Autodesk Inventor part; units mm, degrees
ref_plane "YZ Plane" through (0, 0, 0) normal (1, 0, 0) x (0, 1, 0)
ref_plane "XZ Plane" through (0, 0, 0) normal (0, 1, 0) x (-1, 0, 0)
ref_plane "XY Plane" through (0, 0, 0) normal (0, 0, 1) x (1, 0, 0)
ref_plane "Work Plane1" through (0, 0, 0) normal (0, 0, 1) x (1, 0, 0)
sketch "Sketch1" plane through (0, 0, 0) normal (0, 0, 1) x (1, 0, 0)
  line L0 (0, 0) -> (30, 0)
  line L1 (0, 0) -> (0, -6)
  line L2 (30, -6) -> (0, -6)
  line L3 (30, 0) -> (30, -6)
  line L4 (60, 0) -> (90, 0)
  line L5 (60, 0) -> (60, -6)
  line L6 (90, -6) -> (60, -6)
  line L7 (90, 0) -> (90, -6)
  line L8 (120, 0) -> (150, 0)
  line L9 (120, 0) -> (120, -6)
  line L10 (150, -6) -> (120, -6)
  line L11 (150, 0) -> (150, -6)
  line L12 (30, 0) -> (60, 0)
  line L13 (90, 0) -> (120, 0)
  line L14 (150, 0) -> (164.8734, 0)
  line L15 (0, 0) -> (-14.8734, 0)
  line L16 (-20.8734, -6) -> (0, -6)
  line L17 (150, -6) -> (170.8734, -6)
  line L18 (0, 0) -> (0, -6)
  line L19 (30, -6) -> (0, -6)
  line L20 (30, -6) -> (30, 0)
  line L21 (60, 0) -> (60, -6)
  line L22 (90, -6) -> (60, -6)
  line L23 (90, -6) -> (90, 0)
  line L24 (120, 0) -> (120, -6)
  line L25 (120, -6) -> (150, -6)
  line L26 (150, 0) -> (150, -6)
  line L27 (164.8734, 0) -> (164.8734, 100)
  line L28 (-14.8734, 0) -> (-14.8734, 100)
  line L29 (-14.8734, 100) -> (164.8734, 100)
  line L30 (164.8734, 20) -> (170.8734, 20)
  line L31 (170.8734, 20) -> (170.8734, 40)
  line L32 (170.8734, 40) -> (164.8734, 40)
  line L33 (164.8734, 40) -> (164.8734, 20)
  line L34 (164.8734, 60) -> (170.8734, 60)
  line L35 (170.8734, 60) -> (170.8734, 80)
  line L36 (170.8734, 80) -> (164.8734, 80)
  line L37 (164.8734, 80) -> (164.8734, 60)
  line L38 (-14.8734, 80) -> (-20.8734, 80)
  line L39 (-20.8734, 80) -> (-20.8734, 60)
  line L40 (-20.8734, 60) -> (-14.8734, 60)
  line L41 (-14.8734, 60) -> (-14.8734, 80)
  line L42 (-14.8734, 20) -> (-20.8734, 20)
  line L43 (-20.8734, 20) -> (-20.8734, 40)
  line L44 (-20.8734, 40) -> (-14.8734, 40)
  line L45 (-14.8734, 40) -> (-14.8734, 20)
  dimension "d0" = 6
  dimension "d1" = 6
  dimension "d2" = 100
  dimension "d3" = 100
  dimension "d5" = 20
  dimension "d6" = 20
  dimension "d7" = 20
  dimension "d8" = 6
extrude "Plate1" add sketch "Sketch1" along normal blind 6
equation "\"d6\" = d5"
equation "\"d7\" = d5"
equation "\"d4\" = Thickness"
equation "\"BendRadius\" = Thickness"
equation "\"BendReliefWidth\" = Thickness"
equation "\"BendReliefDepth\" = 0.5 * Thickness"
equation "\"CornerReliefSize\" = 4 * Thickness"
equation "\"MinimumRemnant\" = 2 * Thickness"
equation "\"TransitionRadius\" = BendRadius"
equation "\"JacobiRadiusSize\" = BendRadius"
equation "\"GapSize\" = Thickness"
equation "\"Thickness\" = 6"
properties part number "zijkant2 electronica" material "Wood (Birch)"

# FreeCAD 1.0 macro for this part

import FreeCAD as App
import Part
import Sketcher
from FreeCAD import Vector
Q = App.Units.Quantity

doc = App.newDocument("Part")
params = doc.addObject("Spreadsheet::Sheet", "Params")
for row, (alias, value) in enumerate([
    ("sketch1_width", "6 mm"),
    ("sketch1_height", "20 mm"),
    ("sketch1_width2", "30 mm"),
    ("pad1_length", "6 mm"),
], start=1):
    params.set(f"A{row}", alias)
    params.set(f"B{row}", "=" + value)
    params.setAlias(f"B{row}", alias)

body = doc.addObject("PartDesign::Body", "Body")

# Sketch on XY plane
sketch1 = body.newObject("Sketcher::SketchObject", "Sketch")
sketch1.AttachmentSupport = (doc.getObject("XY_Plane"), [""])
sketch1.MapMode = "FlatFace"
sketch1.addGeometry([
    Part.LineSegment(Vector(-15, 0, 0), Vector(0, 0, 0)),  # 0
    Part.LineSegment(Vector(0, 0, 0), Vector(0, -6, 0)),  # 1
    Part.LineSegment(Vector(0, -6, 0), Vector(30, -6, 0)),  # 2
    Part.LineSegment(Vector(30, -6, 0), Vector(30, 0, 0)),  # 3
    Part.LineSegment(Vector(30, 0, 0), Vector(60, 0, 0)),  # 4
    Part.LineSegment(Vector(60, 0, 0), Vector(60, -6, 0)),  # 5
    Part.LineSegment(Vector(60, -6, 0), Vector(90, -6, 0)),  # 6
    Part.LineSegment(Vector(90, -6, 0), Vector(90, 0, 0)),  # 7
    Part.LineSegment(Vector(90, 0, 0), Vector(120, 0, 0)),  # 8
    Part.LineSegment(Vector(120, 0, 0), Vector(120, -6, 0)),  # 9
    Part.LineSegment(Vector(120, -6, 0), Vector(150, -6, 0)),  # 10
    Part.LineSegment(Vector(150, -6, 0), Vector(150, 0, 0)),  # 11
    Part.LineSegment(Vector(150, 0, 0), Vector(165, 0, 0)),  # 12
    Part.LineSegment(Vector(165, 0, 0), Vector(165, 20, 0)),  # 13
    Part.LineSegment(Vector(165, 20, 0), Vector(171, 20, 0)),  # 14
    Part.LineSegment(Vector(171, 20, 0), Vector(171, 40, 0)),  # 15
    Part.LineSegment(Vector(171, 40, 0), Vector(165, 40, 0)),  # 16
    Part.LineSegment(Vector(165, 40, 0), Vector(165, 60, 0)),  # 17
    Part.LineSegment(Vector(165, 60, 0), Vector(171, 60, 0)),  # 18
    Part.LineSegment(Vector(171, 60, 0), Vector(171, 80, 0)),  # 19
    Part.LineSegment(Vector(171, 80, 0), Vector(165, 80, 0)),  # 20
    Part.LineSegment(Vector(165, 80, 0), Vector(165, 100, 0)),  # 21
    Part.LineSegment(Vector(165, 100, 0), Vector(-15, 100, 0)),  # 22
    Part.LineSegment(Vector(-15, 100, 0), Vector(-15, 80, 0)),  # 23
    Part.LineSegment(Vector(-15, 80, 0), Vector(-21, 80, 0)),  # 24
    Part.LineSegment(Vector(-21, 80, 0), Vector(-21, 60, 0)),  # 25
    Part.LineSegment(Vector(-21, 60, 0), Vector(-15, 60, 0)),  # 26
    Part.LineSegment(Vector(-15, 60, 0), Vector(-15, 40, 0)),  # 27
    Part.LineSegment(Vector(-15, 40, 0), Vector(-21, 40, 0)),  # 28
    Part.LineSegment(Vector(-21, 40, 0), Vector(-21, 20, 0)),  # 29
    Part.LineSegment(Vector(-21, 20, 0), Vector(-15, 20, 0)),  # 30
    Part.LineSegment(Vector(-15, 20, 0), Vector(-15, 0, 0)),  # 31
], False)
sketch1.addConstraint([
    Sketcher.Constraint("Coincident", 0, 2, 1, 1),
    Sketcher.Constraint("Coincident", 1, 2, 2, 1),
    Sketcher.Constraint("Coincident", 2, 2, 3, 1),
    Sketcher.Constraint("Coincident", 3, 2, 4, 1),
    Sketcher.Constraint("Coincident", 4, 2, 5, 1),
    Sketcher.Constraint("Coincident", 5, 2, 6, 1),
    Sketcher.Constraint("Coincident", 6, 2, 7, 1),
    Sketcher.Constraint("Coincident", 7, 2, 8, 1),
    Sketcher.Constraint("Coincident", 8, 2, 9, 1),
    Sketcher.Constraint("Coincident", 9, 2, 10, 1),
    Sketcher.Constraint("Coincident", 10, 2, 11, 1),
    Sketcher.Constraint("Coincident", 11, 2, 12, 1),
    Sketcher.Constraint("Coincident", 12, 2, 13, 1),
    Sketcher.Constraint("Coincident", 13, 2, 14, 1),
    Sketcher.Constraint("Coincident", 14, 2, 15, 1),
    Sketcher.Constraint("Coincident", 15, 2, 16, 1),
    Sketcher.Constraint("Coincident", 16, 2, 17, 1),
    Sketcher.Constraint("Coincident", 17, 2, 18, 1),
    Sketcher.Constraint("Coincident", 18, 2, 19, 1),
    Sketcher.Constraint("Coincident", 19, 2, 20, 1),
    Sketcher.Constraint("Coincident", 20, 2, 21, 1),
    Sketcher.Constraint("Coincident", 21, 2, 22, 1),
    Sketcher.Constraint("Coincident", 22, 2, 23, 1),
    Sketcher.Constraint("Coincident", 23, 2, 24, 1),
    Sketcher.Constraint("Coincident", 24, 2, 25, 1),
    Sketcher.Constraint("Coincident", 25, 2, 26, 1),
    Sketcher.Constraint("Coincident", 26, 2, 27, 1),
    Sketcher.Constraint("Coincident", 27, 2, 28, 1),
    Sketcher.Constraint("Coincident", 28, 2, 29, 1),
    Sketcher.Constraint("Coincident", 29, 2, 30, 1),
    Sketcher.Constraint("Coincident", 30, 2, 31, 1),
    Sketcher.Constraint("Coincident", 31, 2, 0, 1),
    Sketcher.Constraint("Horizontal", 0),
    Sketcher.Constraint("Vertical", 1),
    Sketcher.Constraint("Horizontal", 2),
    Sketcher.Constraint("Vertical", 3),
    Sketcher.Constraint("Horizontal", 4),
    Sketcher.Constraint("Vertical", 5),
    Sketcher.Constraint("Horizontal", 6),
    Sketcher.Constraint("Vertical", 7),
    Sketcher.Constraint("Horizontal", 8),
    Sketcher.Constraint("Vertical", 9),
    Sketcher.Constraint("Horizontal", 10),
    Sketcher.Constraint("Vertical", 11),
    Sketcher.Constraint("Horizontal", 12),
    Sketcher.Constraint("Vertical", 13),
    Sketcher.Constraint("Horizontal", 14),
    Sketcher.Constraint("Vertical", 15),
    Sketcher.Constraint("Horizontal", 16),
    Sketcher.Constraint("Vertical", 17),
    Sketcher.Constraint("Horizontal", 18),
    Sketcher.Constraint("Vertical", 19),
    Sketcher.Constraint("Horizontal", 20),
    Sketcher.Constraint("Vertical", 21),
    Sketcher.Constraint("Horizontal", 22),
    Sketcher.Constraint("Vertical", 23),
    Sketcher.Constraint("Horizontal", 24),
    Sketcher.Constraint("Vertical", 25),
    Sketcher.Constraint("Horizontal", 26),
    Sketcher.Constraint("Vertical", 27),
    Sketcher.Constraint("Horizontal", 28),
    Sketcher.Constraint("Vertical", 29),
    Sketcher.Constraint("Horizontal", 30),
    Sketcher.Constraint("Vertical", 31),
    Sketcher.Constraint("Coincident", 0, 2, -1, 1),
    Sketcher.Constraint("PointOnObject", 3, 2, -1),
    Sketcher.Constraint("PointOnObject", 7, 2, -1),
    Sketcher.Constraint("PointOnObject", 11, 2, -1),
    Sketcher.Constraint("Horizontal", 2, 2, 5, 2),
    Sketcher.Constraint("Horizontal", 6, 2, 9, 2),
    Sketcher.Constraint("Horizontal", 20, 2, 23, 2),
    Sketcher.Constraint("Horizontal", 18, 2, 25, 2),
    Sketcher.Constraint("Horizontal", 16, 2, 27, 2),
    Sketcher.Constraint("Horizontal", 14, 2, 29, 2),
    Sketcher.Constraint("Vertical", 13, 2, 16, 2),
    Sketcher.Constraint("Vertical", 15, 2, 18, 2),
    Sketcher.Constraint("Vertical", 17, 2, 20, 2),
    Sketcher.Constraint("Vertical", 23, 2, 26, 2),
    Sketcher.Constraint("Vertical", 25, 2, 28, 2),
    Sketcher.Constraint("Vertical", 27, 2, 30, 2),
    Sketcher.Constraint("Equal", 2, 4),
    Sketcher.Constraint("Equal", 4, 6),
    Sketcher.Constraint("Equal", 6, 8),
    Sketcher.Constraint("Equal", 8, 10),
    Sketcher.Constraint("Equal", 0, 12),
    Sketcher.Constraint("Equal", 20, 24),
    Sketcher.Constraint("Equal", 30, 1),
    Sketcher.Constraint("Equal", 13, 15),
    Sketcher.Constraint("Equal", 15, 17),
    Sketcher.Constraint("Equal", 17, 19),
    Sketcher.Constraint("Equal", 19, 21),
    Sketcher.Constraint("DistanceX", 14, 1, 14, 2, Q("6 mm")),
    Sketcher.Constraint("DistanceY", 13, 1, 13, 2, Q("20 mm")),
    Sketcher.Constraint("DistanceX", 2, 1, 2, 2, Q("30 mm")),
    Sketcher.Constraint("DistanceX", 0, 1, 0, 2, Q("14.8734 mm")),
])
sketch1.setExpression("Constraints[91]", "Params.sketch1_width")
sketch1.setExpression("Constraints[92]", "Params.sketch1_height")
sketch1.setExpression("Constraints[93]", "Params.sketch1_width2")
pad1 = body.newObject("PartDesign::Pad", "Pad")
pad1.Profile = sketch1
pad1.setExpression("Length", "Params.pad1_length")

doc.recompute()
